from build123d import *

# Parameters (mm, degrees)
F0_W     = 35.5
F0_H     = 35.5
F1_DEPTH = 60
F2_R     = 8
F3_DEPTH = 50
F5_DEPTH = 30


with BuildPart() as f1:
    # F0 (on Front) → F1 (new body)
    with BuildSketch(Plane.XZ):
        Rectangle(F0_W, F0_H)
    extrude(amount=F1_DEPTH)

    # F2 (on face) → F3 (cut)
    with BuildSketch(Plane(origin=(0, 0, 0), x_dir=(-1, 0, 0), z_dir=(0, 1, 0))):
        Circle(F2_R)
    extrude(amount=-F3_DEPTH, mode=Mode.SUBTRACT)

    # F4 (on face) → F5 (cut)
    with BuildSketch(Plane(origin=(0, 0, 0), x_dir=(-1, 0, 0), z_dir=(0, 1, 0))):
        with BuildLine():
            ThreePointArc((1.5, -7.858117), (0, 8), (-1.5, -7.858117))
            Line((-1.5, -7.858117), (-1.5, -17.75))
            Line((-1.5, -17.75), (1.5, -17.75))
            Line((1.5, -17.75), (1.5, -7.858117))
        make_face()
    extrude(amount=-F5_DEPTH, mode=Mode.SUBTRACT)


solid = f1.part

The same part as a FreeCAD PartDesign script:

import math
import FreeCAD as App
import Part
import Sketcher
from FreeCAD import Vector

doc = App.newDocument("Part")
params = doc.addObject("Spreadsheet::Sheet", "Params")
for row, (alias, value) in enumerate([
    ("sketch1_width", "35.5 mm"),
    ("pad1_length", "60 mm"),
    ("sketch2_diameter", "16 mm"),
    ("pocket1_length", "50 mm"),
    ("sketch3_radius", "8 mm"),
    ("sketch3_width", "3 mm"),
    ("pocket2_length", "30 mm"),
], start=1):
    params.set(f"A{row}", alias)
    params.set(f"B{row}", "=" + value)
    params.setAlias(f"B{row}", alias)

body = doc.addObject("PartDesign::Body", "Body")

sketch1 = body.newObject("Sketcher::SketchObject", "Sketch")
sketch1.AttachmentSupport = (doc.getObject("XZ_Plane"), [""])
sketch1.MapMode = "FlatFace"
sketch1.addGeometry([
    Part.LineSegment(Vector(-17.75, 17.75, 0), Vector(-17.75, -17.75, 0)),
    Part.LineSegment(Vector(-17.75, -17.75, 0), Vector(17.75, -17.75, 0)),
    Part.LineSegment(Vector(17.75, -17.75, 0), Vector(17.75, 17.75, 0)),
    Part.LineSegment(Vector(17.75, 17.75, 0), Vector(-17.75, 17.75, 0)),
], False)
sketch1.addConstraint([
    Sketcher.Constraint("Coincident", 0, 2, 1, 1),
    Sketcher.Constraint("Coincident", 1, 2, 2, 1),
    Sketcher.Constraint("Coincident", 2, 2, 3, 1),
    Sketcher.Constraint("Coincident", 3, 2, 0, 1),
    Sketcher.Constraint("Vertical", 0),
    Sketcher.Constraint("Horizontal", 1),
    Sketcher.Constraint("Vertical", 2),
    Sketcher.Constraint("Horizontal", 3),
    Sketcher.Constraint("Symmetric", 0, 2, 2, 2, -1, 1),
    Sketcher.Constraint("Equal", 3, 0),
    Sketcher.Constraint("DistanceX", 1, 1, 1, 2, 35.5),
])
sketch1.setExpression("Constraints[10]", "Params.sketch1_width")
pad1 = body.newObject("PartDesign::Pad", "Pad")
pad1.Profile = sketch1
pad1.setExpression("Length", "Params.pad1_length")

sketch2 = body.newObject("Sketcher::SketchObject", "Sketch001")
sketch2.AttachmentSupport = (doc.getObject("XZ_Plane"), [""])
sketch2.MapMode = "FlatFace"
sketch2.addGeometry(Part.Circle(Vector(0, 0, 0), Vector(0, 0, 1), 8), False)
sketch2.addConstraint([
    Sketcher.Constraint("Coincident", 0, 3, -1, 1),
    Sketcher.Constraint("Diameter", 0, 16.0),
])
sketch2.setExpression("Constraints[1]", "Params.sketch2_diameter")
pocket1 = body.newObject("PartDesign::Pocket", "Pocket")
pocket1.Profile = sketch2
pocket1.setExpression("Length", "Params.pocket1_length")
pocket1.Reversed = True

sketch3 = body.newObject("Sketcher::SketchObject", "Sketch002")
sketch3.AttachmentSupport = (doc.getObject("XZ_Plane"), [""])
sketch3.MapMode = "FlatFace"
sketch3.addGeometry([
    Part.ArcOfCircle(Part.Circle(Vector(0, 0, 0), Vector(0, 0, 1), 8), math.radians(-79.193077), math.radians(259.193077)),
    Part.LineSegment(Vector(1.5, -7.858117, 0), Vector(1.5, -17.75, 0)),
    Part.LineSegment(Vector(1.5, -17.75, 0), Vector(-1.5, -17.75, 0)),
    Part.LineSegment(Vector(-1.5, -17.75, 0), Vector(-1.5, -7.858117, 0)),
], False)
sketch3.addConstraint([
    Sketcher.Constraint("Coincident", 0, 1, 1, 1),
    Sketcher.Constraint("Coincident", 1, 2, 2, 1),
    Sketcher.Constraint("Coincident", 2, 2, 3, 1),
    Sketcher.Constraint("Coincident", 3, 2, 0, 2),
    Sketcher.Constraint("Vertical", 1),
    Sketcher.Constraint("Horizontal", 2),
    Sketcher.Constraint("Vertical", 3),
    Sketcher.Constraint("Coincident", 0, 3, -1, 1),
    Sketcher.Constraint("Horizontal", 0, 1, 3, 2),
    Sketcher.Constraint("Radius", 0, 8.0),
    Sketcher.Constraint("DistanceX", 2, 2, 2, 1, 3.0),
    Sketcher.Constraint("DistanceY", 1, 2, -1, 1, 17.75),
])
sketch3.setExpression("Constraints[9]", "Params.sketch3_radius")
sketch3.setExpression("Constraints[10]", "Params.sketch3_width")
pocket2 = body.newObject("PartDesign::Pocket", "Pocket001")
pocket2.Profile = sketch3
pocket2.setExpression("Length", "Params.pocket2_length")
pocket2.Reversed = True

doc.recompute()
